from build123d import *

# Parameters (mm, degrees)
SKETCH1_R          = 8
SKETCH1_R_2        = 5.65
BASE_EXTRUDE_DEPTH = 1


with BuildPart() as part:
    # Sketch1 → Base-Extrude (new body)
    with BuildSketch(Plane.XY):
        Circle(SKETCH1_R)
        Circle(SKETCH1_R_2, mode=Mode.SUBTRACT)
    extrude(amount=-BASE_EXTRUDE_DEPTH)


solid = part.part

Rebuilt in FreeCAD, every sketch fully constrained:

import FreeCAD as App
import Part
import Sketcher

V = App.Vector
Q = App.Units.Quantity

doc = App.newDocument("Part")
params = doc.addObject("Spreadsheet::Sheet", "Params")
for row, (alias, value) in enumerate([
    ("sketch1_diameter", "16 mm"),
    ("sketch1_diameter2", "11.3 mm"),
    ("pad1_length", "1 mm"),
], start=1):
    params.set(f"A{row}", alias)
    params.set(f"B{row}", "=" + value)
    params.setAlias(f"B{row}", alias)

body = doc.addObject("PartDesign::Body", "Body")

# Sketch on XY plane
sketch1 = doc.addObject("Sketcher::SketchObject", "Sketch")
body.addObject(sketch1)
sketch1.AttachmentSupport = (doc.XY_Plane, [""])
sketch1.MapMode = "FlatFace"
sketch1.addGeometry(Part.Circle(V(0, 0, 0), V(0, 0, 1), 8), False)
sketch1.addGeometry(Part.Circle(V(0, 0, 0), V(0, 0, 1), 6), False)
sketch1.addConstraint(Sketcher.Constraint("Coincident", 0, 3, -1, 1))
sketch1.addConstraint(Sketcher.Constraint("Coincident", 1, 3, -1, 1))
sketch1.addConstraint(Sketcher.Constraint("Diameter", 0, Q("16 mm")))
sketch1.addConstraint(Sketcher.Constraint("Diameter", 1, Q("11.3 mm")))
sketch1.setExpression("Constraints[2]", "Params.sketch1_diameter")
sketch1.setExpression("Constraints[3]", "Params.sketch1_diameter2")
pad1 = doc.addObject("PartDesign::Pad", "Pad")
body.addObject(pad1)
pad1.Profile = sketch1
pad1.setExpression("Length", "Params.pad1_length")
pad1.Reversed = True

doc.recompute()
